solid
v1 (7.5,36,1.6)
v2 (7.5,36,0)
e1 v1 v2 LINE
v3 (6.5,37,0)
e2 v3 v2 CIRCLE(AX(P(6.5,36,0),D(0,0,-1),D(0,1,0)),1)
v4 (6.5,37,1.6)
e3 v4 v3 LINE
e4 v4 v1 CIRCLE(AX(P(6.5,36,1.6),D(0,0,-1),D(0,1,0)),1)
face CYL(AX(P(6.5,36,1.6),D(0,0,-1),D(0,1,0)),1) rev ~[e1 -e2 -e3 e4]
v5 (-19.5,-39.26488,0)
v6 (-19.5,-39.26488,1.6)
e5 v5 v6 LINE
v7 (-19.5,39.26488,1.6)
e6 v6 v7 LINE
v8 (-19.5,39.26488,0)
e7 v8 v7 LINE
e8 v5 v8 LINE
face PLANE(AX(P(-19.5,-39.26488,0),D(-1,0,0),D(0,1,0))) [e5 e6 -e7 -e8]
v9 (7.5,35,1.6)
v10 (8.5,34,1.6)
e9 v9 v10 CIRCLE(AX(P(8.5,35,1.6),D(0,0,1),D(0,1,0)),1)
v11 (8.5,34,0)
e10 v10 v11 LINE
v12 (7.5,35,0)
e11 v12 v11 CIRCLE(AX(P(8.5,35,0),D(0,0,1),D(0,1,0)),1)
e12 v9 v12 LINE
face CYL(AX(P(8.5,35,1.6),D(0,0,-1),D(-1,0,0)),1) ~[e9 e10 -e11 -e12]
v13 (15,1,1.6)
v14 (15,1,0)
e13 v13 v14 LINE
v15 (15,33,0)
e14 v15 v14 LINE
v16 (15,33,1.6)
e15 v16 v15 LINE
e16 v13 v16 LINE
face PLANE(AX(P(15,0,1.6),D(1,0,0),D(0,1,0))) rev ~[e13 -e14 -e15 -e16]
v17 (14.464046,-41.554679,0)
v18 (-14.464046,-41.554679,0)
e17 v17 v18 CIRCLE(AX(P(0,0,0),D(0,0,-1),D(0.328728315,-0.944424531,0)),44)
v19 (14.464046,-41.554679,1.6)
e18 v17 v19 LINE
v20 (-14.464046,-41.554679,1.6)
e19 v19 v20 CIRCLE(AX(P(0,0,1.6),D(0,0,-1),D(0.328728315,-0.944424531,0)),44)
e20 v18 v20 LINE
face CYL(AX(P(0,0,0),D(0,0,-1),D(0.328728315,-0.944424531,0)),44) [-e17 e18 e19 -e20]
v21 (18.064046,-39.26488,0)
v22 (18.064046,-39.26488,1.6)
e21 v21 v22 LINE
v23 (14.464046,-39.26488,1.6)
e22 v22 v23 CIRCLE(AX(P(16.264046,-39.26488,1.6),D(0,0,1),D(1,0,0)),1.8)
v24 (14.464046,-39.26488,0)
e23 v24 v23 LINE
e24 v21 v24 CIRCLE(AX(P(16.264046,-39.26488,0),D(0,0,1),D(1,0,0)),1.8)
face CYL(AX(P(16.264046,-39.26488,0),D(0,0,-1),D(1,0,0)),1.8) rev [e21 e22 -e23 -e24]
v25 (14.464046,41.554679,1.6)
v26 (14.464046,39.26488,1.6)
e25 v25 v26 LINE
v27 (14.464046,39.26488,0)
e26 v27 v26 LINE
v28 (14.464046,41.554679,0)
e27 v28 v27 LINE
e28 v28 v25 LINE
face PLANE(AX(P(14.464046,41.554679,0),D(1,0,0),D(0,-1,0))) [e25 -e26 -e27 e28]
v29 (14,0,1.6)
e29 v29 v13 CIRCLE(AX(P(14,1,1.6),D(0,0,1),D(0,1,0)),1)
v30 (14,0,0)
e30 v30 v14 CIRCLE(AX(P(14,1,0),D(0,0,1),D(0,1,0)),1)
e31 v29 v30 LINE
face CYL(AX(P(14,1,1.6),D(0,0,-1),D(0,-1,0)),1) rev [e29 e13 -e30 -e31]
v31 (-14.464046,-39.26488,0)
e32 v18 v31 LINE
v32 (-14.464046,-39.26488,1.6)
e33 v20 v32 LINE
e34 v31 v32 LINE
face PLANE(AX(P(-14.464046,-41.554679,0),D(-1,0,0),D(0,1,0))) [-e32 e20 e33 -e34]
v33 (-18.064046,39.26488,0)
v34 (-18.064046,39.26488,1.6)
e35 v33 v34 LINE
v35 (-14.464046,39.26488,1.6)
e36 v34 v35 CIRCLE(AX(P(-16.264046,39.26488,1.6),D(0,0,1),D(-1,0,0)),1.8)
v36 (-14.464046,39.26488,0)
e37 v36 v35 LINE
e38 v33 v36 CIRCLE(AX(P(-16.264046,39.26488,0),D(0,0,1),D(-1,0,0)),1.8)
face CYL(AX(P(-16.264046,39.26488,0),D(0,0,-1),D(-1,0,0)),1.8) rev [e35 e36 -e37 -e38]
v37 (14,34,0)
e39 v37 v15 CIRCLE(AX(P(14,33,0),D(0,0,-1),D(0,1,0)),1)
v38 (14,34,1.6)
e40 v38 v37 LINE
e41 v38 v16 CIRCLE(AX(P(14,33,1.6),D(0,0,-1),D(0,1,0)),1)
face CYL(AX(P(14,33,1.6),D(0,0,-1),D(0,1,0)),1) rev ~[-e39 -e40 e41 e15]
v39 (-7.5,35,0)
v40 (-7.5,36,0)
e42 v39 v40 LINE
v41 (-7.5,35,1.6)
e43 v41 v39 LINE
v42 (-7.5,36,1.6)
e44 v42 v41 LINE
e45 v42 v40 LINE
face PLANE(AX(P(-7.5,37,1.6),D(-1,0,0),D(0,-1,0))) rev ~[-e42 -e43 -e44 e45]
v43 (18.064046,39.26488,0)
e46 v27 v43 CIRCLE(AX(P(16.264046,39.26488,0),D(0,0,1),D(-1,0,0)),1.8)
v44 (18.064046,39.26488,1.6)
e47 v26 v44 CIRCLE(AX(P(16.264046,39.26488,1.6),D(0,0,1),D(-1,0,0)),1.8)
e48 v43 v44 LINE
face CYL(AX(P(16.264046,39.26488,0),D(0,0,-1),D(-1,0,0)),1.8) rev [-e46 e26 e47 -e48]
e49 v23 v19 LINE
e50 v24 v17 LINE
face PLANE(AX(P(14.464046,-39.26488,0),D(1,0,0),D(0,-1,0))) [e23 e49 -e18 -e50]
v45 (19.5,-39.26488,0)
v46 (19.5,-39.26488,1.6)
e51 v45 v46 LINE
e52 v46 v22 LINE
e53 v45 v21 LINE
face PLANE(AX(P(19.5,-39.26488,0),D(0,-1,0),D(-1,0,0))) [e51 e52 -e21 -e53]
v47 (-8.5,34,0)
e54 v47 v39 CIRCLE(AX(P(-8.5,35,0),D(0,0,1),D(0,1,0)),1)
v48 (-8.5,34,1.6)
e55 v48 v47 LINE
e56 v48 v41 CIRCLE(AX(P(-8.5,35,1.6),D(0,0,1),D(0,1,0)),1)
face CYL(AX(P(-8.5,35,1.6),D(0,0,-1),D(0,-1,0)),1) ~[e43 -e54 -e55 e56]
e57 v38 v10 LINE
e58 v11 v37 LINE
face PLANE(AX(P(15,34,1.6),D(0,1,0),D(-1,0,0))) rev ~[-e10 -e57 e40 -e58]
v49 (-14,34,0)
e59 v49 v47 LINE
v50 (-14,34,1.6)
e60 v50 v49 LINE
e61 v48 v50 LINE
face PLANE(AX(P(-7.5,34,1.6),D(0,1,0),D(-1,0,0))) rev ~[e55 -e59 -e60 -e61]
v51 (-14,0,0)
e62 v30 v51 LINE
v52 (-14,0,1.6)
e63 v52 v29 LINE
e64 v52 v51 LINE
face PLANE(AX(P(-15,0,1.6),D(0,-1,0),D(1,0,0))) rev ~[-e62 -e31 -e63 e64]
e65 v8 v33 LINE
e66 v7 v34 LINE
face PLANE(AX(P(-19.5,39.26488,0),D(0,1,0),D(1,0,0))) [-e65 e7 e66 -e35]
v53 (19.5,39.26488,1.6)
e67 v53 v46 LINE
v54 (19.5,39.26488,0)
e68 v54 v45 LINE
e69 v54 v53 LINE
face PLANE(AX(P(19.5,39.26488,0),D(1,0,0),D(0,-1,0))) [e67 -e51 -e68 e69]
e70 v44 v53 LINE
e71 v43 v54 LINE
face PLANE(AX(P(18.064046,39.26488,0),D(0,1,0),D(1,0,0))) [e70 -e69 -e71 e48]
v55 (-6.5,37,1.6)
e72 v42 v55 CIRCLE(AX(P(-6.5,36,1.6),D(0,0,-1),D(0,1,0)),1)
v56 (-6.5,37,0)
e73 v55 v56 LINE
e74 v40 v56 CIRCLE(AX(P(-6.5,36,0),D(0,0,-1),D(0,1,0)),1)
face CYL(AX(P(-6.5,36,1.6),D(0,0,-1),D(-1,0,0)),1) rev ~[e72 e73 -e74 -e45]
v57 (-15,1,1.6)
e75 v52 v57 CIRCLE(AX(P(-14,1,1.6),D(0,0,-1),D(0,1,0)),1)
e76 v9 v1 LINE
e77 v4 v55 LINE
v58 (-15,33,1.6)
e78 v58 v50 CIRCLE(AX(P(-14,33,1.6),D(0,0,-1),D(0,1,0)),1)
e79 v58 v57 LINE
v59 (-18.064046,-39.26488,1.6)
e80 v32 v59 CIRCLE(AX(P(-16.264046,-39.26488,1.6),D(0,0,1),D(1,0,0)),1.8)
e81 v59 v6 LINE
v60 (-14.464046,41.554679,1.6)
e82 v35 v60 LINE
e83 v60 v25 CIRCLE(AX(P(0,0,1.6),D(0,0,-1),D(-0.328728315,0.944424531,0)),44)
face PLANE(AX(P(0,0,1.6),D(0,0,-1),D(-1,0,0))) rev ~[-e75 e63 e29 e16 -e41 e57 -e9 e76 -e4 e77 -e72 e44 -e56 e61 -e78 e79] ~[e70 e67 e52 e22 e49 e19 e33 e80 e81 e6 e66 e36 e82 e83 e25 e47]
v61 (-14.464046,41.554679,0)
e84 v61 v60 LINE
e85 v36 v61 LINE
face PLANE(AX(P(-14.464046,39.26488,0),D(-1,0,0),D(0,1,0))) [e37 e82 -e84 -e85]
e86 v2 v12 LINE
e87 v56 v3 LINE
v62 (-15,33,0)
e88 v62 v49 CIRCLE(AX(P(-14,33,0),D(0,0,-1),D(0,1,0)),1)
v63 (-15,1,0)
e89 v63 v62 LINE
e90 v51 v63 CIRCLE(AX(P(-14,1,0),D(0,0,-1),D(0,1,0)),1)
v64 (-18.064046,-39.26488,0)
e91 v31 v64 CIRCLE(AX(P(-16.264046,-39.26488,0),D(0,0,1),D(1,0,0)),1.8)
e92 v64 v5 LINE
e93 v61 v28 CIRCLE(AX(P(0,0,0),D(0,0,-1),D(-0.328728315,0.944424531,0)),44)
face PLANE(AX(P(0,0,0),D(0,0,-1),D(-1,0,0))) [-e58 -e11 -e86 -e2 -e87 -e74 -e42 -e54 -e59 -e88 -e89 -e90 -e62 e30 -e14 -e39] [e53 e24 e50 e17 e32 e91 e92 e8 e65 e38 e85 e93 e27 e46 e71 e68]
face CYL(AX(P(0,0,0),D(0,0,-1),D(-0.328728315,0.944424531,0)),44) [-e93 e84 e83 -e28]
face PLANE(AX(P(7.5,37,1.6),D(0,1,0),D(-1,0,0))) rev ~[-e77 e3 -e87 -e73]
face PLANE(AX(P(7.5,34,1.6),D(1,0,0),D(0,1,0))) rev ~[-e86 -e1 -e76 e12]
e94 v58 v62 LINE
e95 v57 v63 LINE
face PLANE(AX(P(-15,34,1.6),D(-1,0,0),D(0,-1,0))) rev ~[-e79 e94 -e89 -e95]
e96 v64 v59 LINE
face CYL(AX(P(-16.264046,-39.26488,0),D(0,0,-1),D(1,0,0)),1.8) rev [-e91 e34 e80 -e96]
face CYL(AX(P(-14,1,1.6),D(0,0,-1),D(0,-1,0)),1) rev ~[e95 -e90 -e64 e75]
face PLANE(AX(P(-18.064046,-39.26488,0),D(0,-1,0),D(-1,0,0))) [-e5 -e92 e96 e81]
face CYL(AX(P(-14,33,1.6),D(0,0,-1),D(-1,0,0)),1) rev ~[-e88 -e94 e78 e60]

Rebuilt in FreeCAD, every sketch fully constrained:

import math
import FreeCAD as App
import Part
import Sketcher
Q = App.Units.Quantity


def edges_at(feature, points):
    """Names of the edges that pass closest to the given points."""
    edges = feature.Shape.Edges
    near = lambda p: min(range(len(edges)), key=lambda i: edges[i].distToShape(Part.Vertex(*p))[0])
    return sorted({f"Edge{near(p) + 1}" for p in points})


def add_polygon(sketch, points):
    """Adds a closed chain of lines whose ends are joined by coincident constraints."""
    first, n = sketch.GeometryCount, len(points)
    for a, b in zip(points, points[1:] + points[:1]):
        sketch.addGeometry(Part.LineSegment(App.Vector(*a, 0), App.Vector(*b, 0)), False)
    for i in range(n):
        sketch.addConstraint(Sketcher.Constraint("Coincident", first + i, 2, first + (i + 1) % n, 1))

doc = App.newDocument("Part")
body = doc.addObject("PartDesign::Body", "Body")

# Sketch on XY plane
sketch1 = doc.addObject("Sketcher::SketchObject", "Sketch")
body.addObject(sketch1)
sketch1.AttachmentSupport = (doc.XY_Plane, [""])
sketch1.MapMode = "FlatFace"
sketch1.addGeometry(Part.LineSegment(App.Vector(-18.064046, 39.26488, 0), App.Vector(-19.5, 39.26488, 0)), False)
sketch1.addGeometry(Part.LineSegment(App.Vector(-19.5, 39.26488, 0), App.Vector(-19.5, -39.26488, 0)), False)
sketch1.addGeometry(Part.LineSegment(App.Vector(-19.5, -39.26488, 0), App.Vector(-18.064046, -39.26488, 0)), False)
sketch1.addGeometry(Part.ArcOfCircle(Part.Circle(App.Vector(-16.264046, -39.26488, 0), App.Vector(0, 0, 1), 1.8), math.radians(0), math.radians(180)), False)
sketch1.addGeometry(Part.LineSegment(App.Vector(-14.464046, -39.26488, 0), App.Vector(-14.464046, -41.554679, 0)), False)
sketch1.addGeometry(Part.ArcOfCircle(Part.Circle(App.Vector(0, 0, 0), App.Vector(0, 0, 1), 44), math.radians(-109.191608), math.radians(-70.808392)), False)
sketch1.addGeometry(Part.LineSegment(App.Vector(14.464046, -41.554679, 0), App.Vector(14.464046, -39.26488, 0)), False)
sketch1.addGeometry(Part.ArcOfCircle(Part.Circle(App.Vector(16.264046, -39.26488, 0), App.Vector(0, 0, 1), 1.8), math.radians(0), math.radians(180)), False)
sketch1.addGeometry(Part.LineSegment(App.Vector(18.064046, -39.26488, 0), App.Vector(19.5, -39.26488, 0)), False)
sketch1.addGeometry(Part.LineSegment(App.Vector(19.5, -39.26488, 0), App.Vector(19.5, 39.26488, 0)), False)
sketch1.addGeometry(Part.LineSegment(App.Vector(19.5, 39.26488, 0), App.Vector(18.064046, 39.26488, 0)), False)
sketch1.addGeometry(Part.ArcOfCircle(Part.Circle(App.Vector(16.264046, 39.26488, 0), App.Vector(0, 0, 1), 1.8), math.radians(180), math.radians(360)), False)
sketch1.addGeometry(Part.LineSegment(App.Vector(14.464046, 39.26488, 0), App.Vector(14.464046, 41.554679, 0)), False)
sketch1.addGeometry(Part.ArcOfCircle(Part.Circle(App.Vector(0, 0, 0), App.Vector(0, 0, 1), 44), math.radians(70.808392), math.radians(109.191608)), False)
sketch1.addGeometry(Part.LineSegment(App.Vector(-14.464046, 41.554679, 0), App.Vector(-14.464046, 39.26488, 0)), False)
sketch1.addGeometry(Part.ArcOfCircle(Part.Circle(App.Vector(-16.264046, 39.26488, 0), App.Vector(0, 0, 1), 1.8), math.radians(180), math.radians(360)), False)
sketch1.addConstraint(Sketcher.Constraint("Coincident", 0, 2, 1, 1))
sketch1.addConstraint(Sketcher.Constraint("Coincident", 1, 2, 2, 1))
sketch1.addConstraint(Sketcher.Constraint("Coincident", 2, 2, 3, 2))
sketch1.addConstraint(Sketcher.Constraint("Tangent", 3, 1, 4, 1))
sketch1.addConstraint(Sketcher.Constraint("Coincident", 4, 2, 5, 1))
sketch1.addConstraint(Sketcher.Constraint("Coincident", 5, 2, 6, 1))
sketch1.addConstraint(Sketcher.Constraint("Tangent", 6, 2, 7, 2))
sketch1.addConstraint(Sketcher.Constraint("Coincident", 7, 1, 8, 1))
sketch1.addConstraint(Sketcher.Constraint("Coincident", 8, 2, 9, 1))
sketch1.addConstraint(Sketcher.Constraint("Coincident", 9, 2, 10, 1))
sketch1.addConstraint(Sketcher.Constraint("Coincident", 10, 2, 11, 2))
sketch1.addConstraint(Sketcher.Constraint("Tangent", 11, 1, 12, 1))
sketch1.addConstraint(Sketcher.Constraint("Coincident", 12, 2, 13, 1))
sketch1.addConstraint(Sketcher.Constraint("Coincident", 13, 2, 14, 1))
sketch1.addConstraint(Sketcher.Constraint("Tangent", 14, 2, 15, 2))
sketch1.addConstraint(Sketcher.Constraint("Coincident", 15, 1, 0, 1))
sketch1.addConstraint(Sketcher.Constraint("Horizontal", 0))
sketch1.addConstraint(Sketcher.Constraint("Vertical", 1))
sketch1.addConstraint(Sketcher.Constraint("Horizontal", 2))
sketch1.addConstraint(Sketcher.Constraint("Vertical", 4))
sketch1.addConstraint(Sketcher.Constraint("Vertical", 6))
sketch1.addConstraint(Sketcher.Constraint("Horizontal", 8))
sketch1.addConstraint(Sketcher.Constraint("Vertical", 9))
sketch1.addConstraint(Sketcher.Constraint("Horizontal", 10))
sketch1.addConstraint(Sketcher.Constraint("Vertical", 12))
sketch1.addConstraint(Sketcher.Constraint("Vertical", 14))
sketch1.addConstraint(Sketcher.Constraint("Coincident", 5, 3, -1, 1))
sketch1.addConstraint(Sketcher.Constraint("Coincident", 13, 3, -1, 1))
sketch1.addConstraint(Sketcher.Constraint("Equal", 3, 7))
sketch1.addConstraint(Sketcher.Constraint("Equal", 7, 11))
sketch1.addConstraint(Sketcher.Constraint("Equal", 5, 13))
sketch1.addConstraint(Sketcher.Constraint("Equal", 11, 15))
sketch1.addConstraint(Sketcher.Constraint("Symmetric", 3, 3, 11, 3, -1, 1))
sketch1.addConstraint(Sketcher.Constraint("Symmetric", 7, 3, 15, 3, -1, 1))
sketch1.addConstraint(Sketcher.Constraint("Symmetric", 0, 2, 8, 2, -1, 1))
sketch1.addConstraint(Sketcher.Constraint("Symmetric", 3, 3, 7, 3, -2))
sketch1.addConstraint(Sketcher.Constraint("Horizontal", 15, 3, 0, 2))
sketch1.addConstraint(Sketcher.Constraint("Horizontal", 7, 3, 1, 2))
sketch1.addConstraint(Sketcher.Constraint("Horizontal", 0, 2, 9, 2))
sketch1.addConstraint(Sketcher.Constraint("Radius", 5, Q("44 mm")))
sketch1.addConstraint(Sketcher.Constraint("Radius", 3, Q("1.8 mm")))
sketch1.addConstraint(Sketcher.Constraint("DistanceX", 0, 2, 9, 2, Q("39 mm")))
sketch1.addConstraint(Sketcher.Constraint("DistanceY", 4, 2, 4, 1, Q("2.289799 mm")))
sketch1.addConstraint(Sketcher.Constraint("DistanceY", 1, 2, 1, 1, Q("78.52976 mm")))
pad1 = doc.addObject("PartDesign::Pad", "Pad")
body.addObject(pad1)
pad1.Profile = sketch1
pad1.Length = 1.6

# Sketch on XY plane
sketch2 = doc.addObject("Sketcher::SketchObject", "Sketch001")
body.addObject(sketch2)
sketch2.AttachmentSupport = (doc.XY_Plane, [""])
sketch2.MapMode = "FlatFace"
sketch2.AttachmentOffset = App.Placement(App.Vector(0, 0, 1.6), App.Rotation())
add_polygon(sketch2, [(-15, 0), (15, 0), (15, 34), (7.5, 34), (7.5, 37), (-7.5, 37), (-7.5, 34), (-15, 34)])  # lines 0-7
sketch2.addConstraint(Sketcher.Constraint("Horizontal", 0))
sketch2.addConstraint(Sketcher.Constraint("Vertical", 1))
sketch2.addConstraint(Sketcher.Constraint("Horizontal", 2))
sketch2.addConstraint(Sketcher.Constraint("Vertical", 3))
sketch2.addConstraint(Sketcher.Constraint("Horizontal", 4))
sketch2.addConstraint(Sketcher.Constraint("Vertical", 5))
sketch2.addConstraint(Sketcher.Constraint("Horizontal", 6))
sketch2.addConstraint(Sketcher.Constraint("Vertical", 7))
sketch2.addConstraint(Sketcher.Constraint("Symmetric", 0, 2, 7, 2, -1, 1))
sketch2.addConstraint(Sketcher.Constraint("Symmetric", 2, 2, 5, 2, -2))
sketch2.addConstraint(Sketcher.Constraint("DistanceX", 0, 1, 0, 2, Q("30 mm")))
sketch2.addConstraint(Sketcher.Constraint("DistanceX", 4, 2, 4, 1, Q("15 mm")))
sketch2.addConstraint(Sketcher.Constraint("DistanceY", 1, 1, 1, 2, Q("34 mm")))
sketch2.addConstraint(Sketcher.Constraint("DistanceY", 3, 1, 3, 2, Q("3 mm")))
pocket1 = doc.addObject("PartDesign::Pocket", "Pocket")
body.addObject(pocket1)
pocket1.Profile = sketch2
pocket1.Length = 10
doc.recompute()

fillet = doc.addObject("PartDesign::Fillet", "Fillet")
body.addObject(fillet)
fillet.Base = (pocket1, edges_at(pocket1, [
    (7.5, 37, 0.8),
    (7.5, 34, 0.8),
    (15, 34, 0.8),
    (15, 0, 0.8),
    (-15, 0, 0.8),
    (-15, 34, 0.8),
    (-7.5, 34, 0.8),
    (-7.5, 37, 0.8),
]))
fillet.Radius = 1

doc.recompute()
